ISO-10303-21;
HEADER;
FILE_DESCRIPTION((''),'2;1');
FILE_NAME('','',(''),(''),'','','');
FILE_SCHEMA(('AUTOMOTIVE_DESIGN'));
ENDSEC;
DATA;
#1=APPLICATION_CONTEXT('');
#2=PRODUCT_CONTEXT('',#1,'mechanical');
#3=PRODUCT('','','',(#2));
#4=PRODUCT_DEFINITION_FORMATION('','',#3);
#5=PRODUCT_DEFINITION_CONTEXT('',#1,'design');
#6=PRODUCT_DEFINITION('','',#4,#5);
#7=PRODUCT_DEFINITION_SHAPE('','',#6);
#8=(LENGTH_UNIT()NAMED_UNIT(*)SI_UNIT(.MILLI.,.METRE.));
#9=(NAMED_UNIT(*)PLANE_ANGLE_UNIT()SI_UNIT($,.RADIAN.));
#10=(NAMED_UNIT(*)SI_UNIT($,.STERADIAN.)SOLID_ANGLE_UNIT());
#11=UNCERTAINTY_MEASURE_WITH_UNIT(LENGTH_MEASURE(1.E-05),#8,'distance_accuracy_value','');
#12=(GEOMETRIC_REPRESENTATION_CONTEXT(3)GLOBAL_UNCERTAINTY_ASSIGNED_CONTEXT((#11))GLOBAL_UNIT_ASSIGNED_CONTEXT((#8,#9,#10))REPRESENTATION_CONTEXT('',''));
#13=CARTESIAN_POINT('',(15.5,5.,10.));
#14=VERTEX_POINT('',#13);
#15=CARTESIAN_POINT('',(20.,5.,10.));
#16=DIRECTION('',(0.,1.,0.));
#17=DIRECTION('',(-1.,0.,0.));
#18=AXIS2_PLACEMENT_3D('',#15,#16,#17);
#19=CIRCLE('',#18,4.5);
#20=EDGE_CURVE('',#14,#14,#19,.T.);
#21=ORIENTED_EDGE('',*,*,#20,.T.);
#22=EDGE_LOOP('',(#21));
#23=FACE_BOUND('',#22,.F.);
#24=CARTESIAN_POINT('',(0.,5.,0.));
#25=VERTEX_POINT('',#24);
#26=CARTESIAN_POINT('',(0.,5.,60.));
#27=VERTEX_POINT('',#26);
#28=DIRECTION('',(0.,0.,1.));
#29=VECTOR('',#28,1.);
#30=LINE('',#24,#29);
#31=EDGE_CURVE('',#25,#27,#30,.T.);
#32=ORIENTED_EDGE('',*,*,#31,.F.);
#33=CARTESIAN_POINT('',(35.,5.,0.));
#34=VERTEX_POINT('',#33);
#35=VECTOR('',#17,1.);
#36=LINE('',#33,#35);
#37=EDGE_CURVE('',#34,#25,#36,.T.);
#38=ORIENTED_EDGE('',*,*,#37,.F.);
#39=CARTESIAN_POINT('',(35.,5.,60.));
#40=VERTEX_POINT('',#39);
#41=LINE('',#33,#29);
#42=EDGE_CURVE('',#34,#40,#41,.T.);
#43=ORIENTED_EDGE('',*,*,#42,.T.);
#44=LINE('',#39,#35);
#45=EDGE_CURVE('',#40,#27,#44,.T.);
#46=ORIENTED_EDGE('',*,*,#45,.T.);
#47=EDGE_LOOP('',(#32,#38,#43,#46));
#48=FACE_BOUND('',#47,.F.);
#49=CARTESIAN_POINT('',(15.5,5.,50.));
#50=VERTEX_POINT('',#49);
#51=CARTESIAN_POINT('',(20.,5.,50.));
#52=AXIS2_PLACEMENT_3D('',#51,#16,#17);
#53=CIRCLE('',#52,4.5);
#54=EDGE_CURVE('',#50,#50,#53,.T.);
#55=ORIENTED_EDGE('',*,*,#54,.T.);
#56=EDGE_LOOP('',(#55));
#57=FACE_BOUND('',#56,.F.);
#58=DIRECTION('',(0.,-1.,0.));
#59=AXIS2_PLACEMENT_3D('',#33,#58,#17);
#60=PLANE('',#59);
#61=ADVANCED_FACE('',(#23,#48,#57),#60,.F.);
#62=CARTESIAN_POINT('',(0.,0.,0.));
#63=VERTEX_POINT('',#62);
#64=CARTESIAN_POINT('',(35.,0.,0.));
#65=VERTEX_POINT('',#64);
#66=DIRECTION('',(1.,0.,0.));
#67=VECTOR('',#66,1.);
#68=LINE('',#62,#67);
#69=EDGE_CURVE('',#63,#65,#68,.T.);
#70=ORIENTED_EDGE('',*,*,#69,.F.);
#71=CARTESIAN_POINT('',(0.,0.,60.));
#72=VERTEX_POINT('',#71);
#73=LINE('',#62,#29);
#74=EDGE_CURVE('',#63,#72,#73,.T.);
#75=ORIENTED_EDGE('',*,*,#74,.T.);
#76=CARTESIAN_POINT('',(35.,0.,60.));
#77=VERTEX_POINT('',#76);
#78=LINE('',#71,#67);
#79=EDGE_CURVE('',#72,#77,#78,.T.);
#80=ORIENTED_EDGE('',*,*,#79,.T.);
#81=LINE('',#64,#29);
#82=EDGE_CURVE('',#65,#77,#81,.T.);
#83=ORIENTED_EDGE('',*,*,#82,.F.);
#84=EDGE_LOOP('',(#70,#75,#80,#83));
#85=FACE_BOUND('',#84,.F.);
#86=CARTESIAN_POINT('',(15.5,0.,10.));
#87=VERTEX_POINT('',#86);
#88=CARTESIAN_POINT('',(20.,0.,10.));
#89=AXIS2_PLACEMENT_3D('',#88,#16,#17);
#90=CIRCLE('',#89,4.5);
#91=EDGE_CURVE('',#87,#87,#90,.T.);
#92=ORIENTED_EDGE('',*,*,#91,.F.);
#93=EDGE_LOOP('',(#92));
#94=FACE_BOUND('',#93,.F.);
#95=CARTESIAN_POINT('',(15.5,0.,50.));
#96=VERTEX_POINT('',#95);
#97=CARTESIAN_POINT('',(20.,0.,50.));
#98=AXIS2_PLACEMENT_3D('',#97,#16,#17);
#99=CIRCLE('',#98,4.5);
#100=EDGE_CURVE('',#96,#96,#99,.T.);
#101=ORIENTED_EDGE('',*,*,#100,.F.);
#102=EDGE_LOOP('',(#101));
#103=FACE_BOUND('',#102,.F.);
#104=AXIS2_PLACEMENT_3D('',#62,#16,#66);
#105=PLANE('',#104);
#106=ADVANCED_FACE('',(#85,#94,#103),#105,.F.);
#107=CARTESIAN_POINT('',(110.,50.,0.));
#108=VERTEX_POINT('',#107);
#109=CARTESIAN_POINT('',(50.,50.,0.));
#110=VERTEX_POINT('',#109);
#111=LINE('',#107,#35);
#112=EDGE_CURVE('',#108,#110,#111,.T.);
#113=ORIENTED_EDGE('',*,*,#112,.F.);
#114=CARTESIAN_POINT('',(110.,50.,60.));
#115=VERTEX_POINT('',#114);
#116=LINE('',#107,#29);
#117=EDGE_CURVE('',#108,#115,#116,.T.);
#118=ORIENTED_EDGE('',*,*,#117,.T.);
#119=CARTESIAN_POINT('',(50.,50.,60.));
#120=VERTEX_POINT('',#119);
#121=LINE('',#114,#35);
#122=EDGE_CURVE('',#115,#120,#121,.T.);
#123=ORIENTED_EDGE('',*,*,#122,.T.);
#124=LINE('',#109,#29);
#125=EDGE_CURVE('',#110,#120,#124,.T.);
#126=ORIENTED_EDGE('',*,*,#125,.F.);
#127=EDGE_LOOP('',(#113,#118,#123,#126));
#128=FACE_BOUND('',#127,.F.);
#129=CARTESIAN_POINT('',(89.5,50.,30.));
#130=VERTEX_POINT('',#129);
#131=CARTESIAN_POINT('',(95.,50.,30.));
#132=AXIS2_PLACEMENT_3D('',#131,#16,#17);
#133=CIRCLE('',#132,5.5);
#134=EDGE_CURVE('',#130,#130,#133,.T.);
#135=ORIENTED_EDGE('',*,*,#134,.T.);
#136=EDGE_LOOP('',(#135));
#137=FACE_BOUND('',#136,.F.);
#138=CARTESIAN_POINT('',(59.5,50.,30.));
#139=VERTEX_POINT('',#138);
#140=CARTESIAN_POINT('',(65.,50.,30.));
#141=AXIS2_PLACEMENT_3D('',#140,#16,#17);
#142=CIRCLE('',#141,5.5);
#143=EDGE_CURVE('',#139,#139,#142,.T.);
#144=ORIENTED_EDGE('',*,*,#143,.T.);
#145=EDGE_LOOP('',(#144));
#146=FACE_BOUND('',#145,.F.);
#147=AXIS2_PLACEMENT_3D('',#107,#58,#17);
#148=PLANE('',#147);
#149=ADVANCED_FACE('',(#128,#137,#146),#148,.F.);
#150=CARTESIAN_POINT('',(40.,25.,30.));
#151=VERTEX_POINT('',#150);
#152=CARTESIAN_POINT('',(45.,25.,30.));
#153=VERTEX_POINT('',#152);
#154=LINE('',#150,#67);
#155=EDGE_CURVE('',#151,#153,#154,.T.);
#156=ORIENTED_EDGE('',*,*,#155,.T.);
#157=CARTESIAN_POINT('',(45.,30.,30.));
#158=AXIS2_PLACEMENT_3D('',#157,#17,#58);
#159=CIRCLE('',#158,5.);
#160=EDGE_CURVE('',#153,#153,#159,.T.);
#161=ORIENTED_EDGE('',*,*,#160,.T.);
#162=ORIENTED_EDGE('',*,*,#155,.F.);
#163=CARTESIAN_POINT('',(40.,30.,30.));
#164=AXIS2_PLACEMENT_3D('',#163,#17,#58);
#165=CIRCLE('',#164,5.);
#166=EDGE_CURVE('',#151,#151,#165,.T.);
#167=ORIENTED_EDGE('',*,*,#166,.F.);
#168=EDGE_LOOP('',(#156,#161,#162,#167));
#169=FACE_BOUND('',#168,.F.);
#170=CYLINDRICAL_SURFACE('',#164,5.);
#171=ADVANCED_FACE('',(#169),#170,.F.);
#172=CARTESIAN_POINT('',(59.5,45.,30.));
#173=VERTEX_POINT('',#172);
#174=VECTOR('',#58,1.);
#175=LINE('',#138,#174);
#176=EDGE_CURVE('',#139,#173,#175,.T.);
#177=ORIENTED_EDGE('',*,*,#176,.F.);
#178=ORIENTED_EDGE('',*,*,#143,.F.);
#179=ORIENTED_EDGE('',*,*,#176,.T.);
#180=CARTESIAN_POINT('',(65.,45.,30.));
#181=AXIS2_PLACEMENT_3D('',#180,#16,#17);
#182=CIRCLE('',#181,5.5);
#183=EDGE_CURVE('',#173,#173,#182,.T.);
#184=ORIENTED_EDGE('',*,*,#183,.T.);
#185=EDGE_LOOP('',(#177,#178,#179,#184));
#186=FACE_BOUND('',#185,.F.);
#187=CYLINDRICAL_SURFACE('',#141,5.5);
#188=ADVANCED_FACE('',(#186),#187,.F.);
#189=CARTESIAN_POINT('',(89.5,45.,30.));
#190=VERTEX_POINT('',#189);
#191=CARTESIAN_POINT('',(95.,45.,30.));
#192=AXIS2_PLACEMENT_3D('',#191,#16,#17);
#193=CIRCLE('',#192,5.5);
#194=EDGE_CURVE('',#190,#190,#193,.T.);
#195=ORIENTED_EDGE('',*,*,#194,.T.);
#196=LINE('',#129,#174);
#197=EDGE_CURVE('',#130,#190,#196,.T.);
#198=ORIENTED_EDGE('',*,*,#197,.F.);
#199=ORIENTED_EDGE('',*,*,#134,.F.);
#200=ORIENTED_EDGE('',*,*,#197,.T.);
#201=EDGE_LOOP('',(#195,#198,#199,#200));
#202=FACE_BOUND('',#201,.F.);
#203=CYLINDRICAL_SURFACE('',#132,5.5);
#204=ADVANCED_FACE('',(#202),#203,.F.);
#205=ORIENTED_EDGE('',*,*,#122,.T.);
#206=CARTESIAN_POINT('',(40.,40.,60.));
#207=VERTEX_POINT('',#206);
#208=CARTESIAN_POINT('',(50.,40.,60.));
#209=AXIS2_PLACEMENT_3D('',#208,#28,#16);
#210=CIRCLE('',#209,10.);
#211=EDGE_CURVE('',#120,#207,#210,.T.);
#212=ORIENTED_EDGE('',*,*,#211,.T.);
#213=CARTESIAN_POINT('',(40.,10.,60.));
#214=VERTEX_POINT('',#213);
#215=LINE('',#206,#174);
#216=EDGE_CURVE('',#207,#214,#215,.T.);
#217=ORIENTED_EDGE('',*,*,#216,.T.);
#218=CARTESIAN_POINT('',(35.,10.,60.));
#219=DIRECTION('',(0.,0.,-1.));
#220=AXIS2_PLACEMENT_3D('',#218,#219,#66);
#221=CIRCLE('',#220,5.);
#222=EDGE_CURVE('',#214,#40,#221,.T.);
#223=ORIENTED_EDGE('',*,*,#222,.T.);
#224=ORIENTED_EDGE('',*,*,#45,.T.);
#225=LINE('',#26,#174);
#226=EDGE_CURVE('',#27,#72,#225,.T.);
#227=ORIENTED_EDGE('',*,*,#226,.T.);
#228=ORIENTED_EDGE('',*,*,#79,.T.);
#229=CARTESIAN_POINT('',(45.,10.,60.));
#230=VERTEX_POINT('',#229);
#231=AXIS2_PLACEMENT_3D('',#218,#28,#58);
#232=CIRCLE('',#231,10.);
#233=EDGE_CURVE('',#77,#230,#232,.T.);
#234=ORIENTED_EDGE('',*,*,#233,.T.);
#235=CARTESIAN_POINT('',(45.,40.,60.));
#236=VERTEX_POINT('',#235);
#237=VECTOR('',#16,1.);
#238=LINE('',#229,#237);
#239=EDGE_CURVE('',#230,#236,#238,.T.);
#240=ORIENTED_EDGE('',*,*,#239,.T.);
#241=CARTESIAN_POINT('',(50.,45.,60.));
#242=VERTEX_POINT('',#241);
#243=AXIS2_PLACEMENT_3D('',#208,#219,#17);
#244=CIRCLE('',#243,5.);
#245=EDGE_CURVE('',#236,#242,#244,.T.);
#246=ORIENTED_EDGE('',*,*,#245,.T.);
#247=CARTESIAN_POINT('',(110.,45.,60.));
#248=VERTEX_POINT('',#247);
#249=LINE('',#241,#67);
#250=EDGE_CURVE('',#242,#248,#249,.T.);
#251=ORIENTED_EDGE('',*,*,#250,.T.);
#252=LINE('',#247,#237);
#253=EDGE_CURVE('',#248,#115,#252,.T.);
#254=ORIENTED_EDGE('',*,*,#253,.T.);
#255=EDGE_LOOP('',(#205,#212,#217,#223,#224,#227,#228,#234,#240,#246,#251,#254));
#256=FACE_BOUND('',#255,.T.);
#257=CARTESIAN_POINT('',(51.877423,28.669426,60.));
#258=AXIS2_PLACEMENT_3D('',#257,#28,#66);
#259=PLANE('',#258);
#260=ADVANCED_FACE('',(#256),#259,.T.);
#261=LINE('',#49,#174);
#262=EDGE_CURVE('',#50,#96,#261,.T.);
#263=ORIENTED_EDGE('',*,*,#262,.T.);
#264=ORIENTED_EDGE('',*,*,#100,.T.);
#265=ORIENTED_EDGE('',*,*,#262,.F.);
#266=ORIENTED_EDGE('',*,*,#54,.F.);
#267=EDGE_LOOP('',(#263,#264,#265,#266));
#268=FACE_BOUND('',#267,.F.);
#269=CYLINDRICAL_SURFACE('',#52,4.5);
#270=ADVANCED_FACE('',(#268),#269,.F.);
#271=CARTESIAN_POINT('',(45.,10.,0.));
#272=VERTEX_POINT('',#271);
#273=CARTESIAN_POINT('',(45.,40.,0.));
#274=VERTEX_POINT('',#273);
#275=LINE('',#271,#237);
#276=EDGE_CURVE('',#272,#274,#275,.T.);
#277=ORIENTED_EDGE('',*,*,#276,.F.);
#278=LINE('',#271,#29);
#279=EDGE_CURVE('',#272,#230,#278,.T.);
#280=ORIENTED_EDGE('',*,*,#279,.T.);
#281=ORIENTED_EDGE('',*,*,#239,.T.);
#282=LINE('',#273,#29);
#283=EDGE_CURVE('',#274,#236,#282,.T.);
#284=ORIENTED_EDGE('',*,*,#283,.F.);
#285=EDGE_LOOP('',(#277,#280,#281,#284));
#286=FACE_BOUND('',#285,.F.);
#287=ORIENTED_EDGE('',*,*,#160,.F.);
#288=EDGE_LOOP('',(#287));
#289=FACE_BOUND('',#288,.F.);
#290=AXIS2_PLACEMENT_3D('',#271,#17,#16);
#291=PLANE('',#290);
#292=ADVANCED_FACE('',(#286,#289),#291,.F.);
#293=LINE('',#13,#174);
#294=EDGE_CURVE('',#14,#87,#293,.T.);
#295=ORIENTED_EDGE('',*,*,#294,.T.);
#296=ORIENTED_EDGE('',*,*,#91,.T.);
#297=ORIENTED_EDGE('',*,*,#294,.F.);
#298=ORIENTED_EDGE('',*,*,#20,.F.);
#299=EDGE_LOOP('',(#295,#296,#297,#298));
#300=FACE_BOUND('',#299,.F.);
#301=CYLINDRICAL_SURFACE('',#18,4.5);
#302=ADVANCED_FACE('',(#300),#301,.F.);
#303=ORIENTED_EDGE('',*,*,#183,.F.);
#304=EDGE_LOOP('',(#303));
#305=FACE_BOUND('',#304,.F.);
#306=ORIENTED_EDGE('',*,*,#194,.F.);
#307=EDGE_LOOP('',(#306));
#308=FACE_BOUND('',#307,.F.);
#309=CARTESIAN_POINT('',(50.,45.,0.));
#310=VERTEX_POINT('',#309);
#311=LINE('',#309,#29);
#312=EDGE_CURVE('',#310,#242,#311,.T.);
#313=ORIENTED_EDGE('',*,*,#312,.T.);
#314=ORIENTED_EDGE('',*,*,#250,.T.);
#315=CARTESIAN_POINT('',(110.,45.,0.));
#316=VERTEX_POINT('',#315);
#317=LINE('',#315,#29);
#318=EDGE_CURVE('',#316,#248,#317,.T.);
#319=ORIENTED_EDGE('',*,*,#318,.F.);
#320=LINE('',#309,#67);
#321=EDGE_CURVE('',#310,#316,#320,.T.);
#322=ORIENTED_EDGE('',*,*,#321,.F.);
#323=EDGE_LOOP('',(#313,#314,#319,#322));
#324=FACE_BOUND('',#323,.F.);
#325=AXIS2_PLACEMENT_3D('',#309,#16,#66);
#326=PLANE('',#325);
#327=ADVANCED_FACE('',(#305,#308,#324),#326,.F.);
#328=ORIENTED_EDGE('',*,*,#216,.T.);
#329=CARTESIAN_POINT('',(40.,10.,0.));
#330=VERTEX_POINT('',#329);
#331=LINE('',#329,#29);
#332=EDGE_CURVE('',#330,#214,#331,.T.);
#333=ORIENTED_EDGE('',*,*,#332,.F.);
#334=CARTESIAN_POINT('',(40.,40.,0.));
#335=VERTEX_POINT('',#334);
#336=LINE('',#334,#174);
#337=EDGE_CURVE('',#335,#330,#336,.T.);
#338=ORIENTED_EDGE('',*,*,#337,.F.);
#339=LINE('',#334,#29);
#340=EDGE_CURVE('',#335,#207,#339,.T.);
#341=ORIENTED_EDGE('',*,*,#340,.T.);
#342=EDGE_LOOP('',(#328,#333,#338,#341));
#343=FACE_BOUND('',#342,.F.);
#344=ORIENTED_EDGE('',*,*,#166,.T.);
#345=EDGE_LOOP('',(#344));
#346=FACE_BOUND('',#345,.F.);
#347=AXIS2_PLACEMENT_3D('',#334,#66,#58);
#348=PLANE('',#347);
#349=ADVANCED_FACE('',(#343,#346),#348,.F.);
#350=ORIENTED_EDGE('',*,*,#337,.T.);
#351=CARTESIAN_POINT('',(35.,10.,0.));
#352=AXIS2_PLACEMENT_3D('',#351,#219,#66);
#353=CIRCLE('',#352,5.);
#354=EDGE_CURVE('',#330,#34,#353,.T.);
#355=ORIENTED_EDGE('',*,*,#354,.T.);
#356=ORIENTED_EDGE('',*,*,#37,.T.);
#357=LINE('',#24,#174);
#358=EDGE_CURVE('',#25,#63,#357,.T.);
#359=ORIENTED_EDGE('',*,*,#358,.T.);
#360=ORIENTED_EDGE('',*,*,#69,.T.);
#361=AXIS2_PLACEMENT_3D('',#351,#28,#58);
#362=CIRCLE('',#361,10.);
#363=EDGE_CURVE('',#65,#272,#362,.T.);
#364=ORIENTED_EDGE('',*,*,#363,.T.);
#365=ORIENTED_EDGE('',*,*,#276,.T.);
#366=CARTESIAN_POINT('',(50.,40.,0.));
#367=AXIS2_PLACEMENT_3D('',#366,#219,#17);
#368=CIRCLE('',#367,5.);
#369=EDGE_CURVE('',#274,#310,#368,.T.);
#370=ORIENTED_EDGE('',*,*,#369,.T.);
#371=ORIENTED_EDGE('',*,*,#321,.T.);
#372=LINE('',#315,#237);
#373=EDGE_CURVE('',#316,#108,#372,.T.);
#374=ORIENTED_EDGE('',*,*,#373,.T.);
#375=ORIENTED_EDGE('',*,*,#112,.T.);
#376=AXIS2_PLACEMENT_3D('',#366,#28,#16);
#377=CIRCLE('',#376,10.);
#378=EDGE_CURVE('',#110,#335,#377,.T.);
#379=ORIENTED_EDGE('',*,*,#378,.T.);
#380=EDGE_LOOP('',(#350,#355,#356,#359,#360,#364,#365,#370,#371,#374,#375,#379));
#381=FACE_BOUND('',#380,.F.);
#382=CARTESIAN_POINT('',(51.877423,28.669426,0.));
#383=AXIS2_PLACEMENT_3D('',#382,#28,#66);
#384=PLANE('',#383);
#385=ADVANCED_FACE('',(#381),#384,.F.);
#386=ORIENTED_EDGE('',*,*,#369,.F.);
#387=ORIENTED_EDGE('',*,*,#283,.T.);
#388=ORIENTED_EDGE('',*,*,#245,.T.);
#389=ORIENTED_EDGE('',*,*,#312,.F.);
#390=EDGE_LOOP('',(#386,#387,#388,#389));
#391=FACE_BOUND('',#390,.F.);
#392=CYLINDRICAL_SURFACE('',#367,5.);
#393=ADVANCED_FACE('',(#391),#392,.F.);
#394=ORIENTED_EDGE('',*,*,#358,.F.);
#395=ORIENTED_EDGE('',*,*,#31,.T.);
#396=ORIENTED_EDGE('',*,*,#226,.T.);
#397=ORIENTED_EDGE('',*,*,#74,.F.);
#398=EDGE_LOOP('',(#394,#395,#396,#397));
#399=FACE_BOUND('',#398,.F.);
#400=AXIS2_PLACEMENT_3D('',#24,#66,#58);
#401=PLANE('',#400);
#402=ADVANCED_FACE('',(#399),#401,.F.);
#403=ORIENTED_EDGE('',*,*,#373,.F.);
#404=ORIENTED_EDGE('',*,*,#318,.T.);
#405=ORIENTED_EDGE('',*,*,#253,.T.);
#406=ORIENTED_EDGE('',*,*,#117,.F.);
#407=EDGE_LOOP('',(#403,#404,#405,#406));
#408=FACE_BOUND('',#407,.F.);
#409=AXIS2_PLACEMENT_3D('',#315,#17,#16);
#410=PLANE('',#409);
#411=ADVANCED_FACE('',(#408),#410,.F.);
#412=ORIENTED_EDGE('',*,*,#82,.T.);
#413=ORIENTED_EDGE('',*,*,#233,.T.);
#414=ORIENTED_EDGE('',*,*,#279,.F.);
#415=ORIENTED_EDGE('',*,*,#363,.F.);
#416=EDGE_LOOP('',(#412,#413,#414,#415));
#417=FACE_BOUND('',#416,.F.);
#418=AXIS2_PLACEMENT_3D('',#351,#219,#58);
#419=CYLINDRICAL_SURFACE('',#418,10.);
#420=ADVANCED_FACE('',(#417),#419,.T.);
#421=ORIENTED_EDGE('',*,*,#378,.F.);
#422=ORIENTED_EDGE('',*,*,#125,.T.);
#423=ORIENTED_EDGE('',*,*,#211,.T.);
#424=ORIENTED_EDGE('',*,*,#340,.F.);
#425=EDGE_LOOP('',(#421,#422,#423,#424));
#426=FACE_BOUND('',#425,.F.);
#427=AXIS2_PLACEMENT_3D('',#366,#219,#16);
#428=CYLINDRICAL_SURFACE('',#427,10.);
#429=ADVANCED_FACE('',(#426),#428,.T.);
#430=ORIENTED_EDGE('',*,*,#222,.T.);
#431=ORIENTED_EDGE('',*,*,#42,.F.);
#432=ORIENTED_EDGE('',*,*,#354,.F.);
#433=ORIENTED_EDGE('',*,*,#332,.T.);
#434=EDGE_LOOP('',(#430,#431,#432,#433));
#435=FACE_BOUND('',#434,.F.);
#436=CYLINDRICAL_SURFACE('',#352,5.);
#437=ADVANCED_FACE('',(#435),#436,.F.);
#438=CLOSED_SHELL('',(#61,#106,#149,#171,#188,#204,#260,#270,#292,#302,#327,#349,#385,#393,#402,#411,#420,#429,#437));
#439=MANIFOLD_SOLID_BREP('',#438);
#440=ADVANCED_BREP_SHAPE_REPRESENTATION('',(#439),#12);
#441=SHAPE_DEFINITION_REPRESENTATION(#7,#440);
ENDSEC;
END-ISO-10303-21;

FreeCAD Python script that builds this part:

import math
import FreeCAD as App
import Part
import Sketcher
Q = App.Units.Quantity

doc = App.newDocument("Part")
body = doc.addObject("PartDesign::Body", "Body")

sketch1 = doc.addObject("Sketcher::SketchObject", "Sketch")
body.addObject(sketch1)
sketch1.AttachmentSupport = (doc.XY_Plane, [""])
sketch1.MapMode = "FlatFace"
sketch1.addGeometry([
    Part.LineSegment(App.Vector(0, 5, 0), App.Vector(0, 0, 0)),
    Part.LineSegment(App.Vector(0, 0, 0), App.Vector(35, 0, 0)),
    Part.ArcOfCircle(Part.Circle(App.Vector(35, 10, 0), App.Vector(0, 0, 1), 10), math.radians(-90), math.radians(0)),
    Part.LineSegment(App.Vector(45, 10, 0), App.Vector(45, 40, 0)),
    Part.ArcOfCircle(Part.Circle(App.Vector(50, 40, 0), App.Vector(0, 0, 1), 5), math.radians(90), math.radians(180)),
    Part.LineSegment(App.Vector(50, 45, 0), App.Vector(110, 45, 0)),
    Part.LineSegment(App.Vector(110, 45, 0), App.Vector(110, 50, 0)),
    Part.LineSegment(App.Vector(110, 50, 0), App.Vector(50, 50, 0)),
    Part.ArcOfCircle(Part.Circle(App.Vector(50, 40, 0), App.Vector(0, 0, 1), 10), math.radians(90), math.radians(180)),
    Part.LineSegment(App.Vector(40, 40, 0), App.Vector(40, 10, 0)),
    Part.ArcOfCircle(Part.Circle(App.Vector(35, 10, 0), App.Vector(0, 0, 1), 5), math.radians(-90), math.radians(0)),
    Part.LineSegment(App.Vector(35, 5, 0), App.Vector(0, 5, 0)),
], False)
sketch1.addConstraint([
    Sketcher.Constraint("Coincident", 0, 2, 1, 1),
    Sketcher.Constraint("Tangent", 1, 2, 2, 1),
    Sketcher.Constraint("Tangent", 2, 2, 3, 1),
    Sketcher.Constraint("Tangent", 3, 2, 4, 2),
    Sketcher.Constraint("Tangent", 4, 1, 5, 1),
    Sketcher.Constraint("Coincident", 5, 2, 6, 1),
    Sketcher.Constraint("Coincident", 6, 2, 7, 1),
    Sketcher.Constraint("Tangent", 7, 2, 8, 1),
    Sketcher.Constraint("Tangent", 8, 2, 9, 1),
    Sketcher.Constraint("Tangent", 9, 2, 10, 2),
    Sketcher.Constraint("Tangent", 10, 1, 11, 1),
    Sketcher.Constraint("Coincident", 11, 2, 0, 1),
    Sketcher.Constraint("Vertical", 0),
    Sketcher.Constraint("Horizontal", 1),
    Sketcher.Constraint("Vertical", 3),
    Sketcher.Constraint("Horizontal", 5),
    Sketcher.Constraint("Vertical", 6),
    Sketcher.Constraint("Horizontal", 7),
    Sketcher.Constraint("Vertical", 9),
    Sketcher.Constraint("Horizontal", 11),
    Sketcher.Constraint("Coincident", 0, 2, -1, 1),
    Sketcher.Constraint("Coincident", 8, 3, 4, 3),
    Sketcher.Constraint("Coincident", 10, 3, 2, 3),
    Sketcher.Constraint("Equal", 2, 8),
    Sketcher.Constraint("Radius", 2, Q("10 mm")),
    Sketcher.Constraint("Radius", 4, Q("5 mm")),
    Sketcher.Constraint("DistanceX", 1, 1, 1, 2, Q("35 mm")),
    Sketcher.Constraint("DistanceX", 5, 1, 5, 2, Q("60 mm")),
    Sketcher.Constraint("DistanceY", 3, 1, 3, 2, Q("30 mm")),
])
pad1 = doc.addObject("PartDesign::Pad", "Pad")
body.addObject(pad1)
pad1.Profile = sketch1
pad1.Length = 60

sketch2 = doc.addObject("Sketcher::SketchObject", "Sketch001")
body.addObject(sketch2)
sketch2.AttachmentSupport = (doc.XZ_Plane, [""])
sketch2.MapMode = "FlatFace"
sketch2.AttachmentOffset = App.Placement(App.Vector(0, 0, -5), App.Rotation())
sketch2.addGeometry([
    Part.Circle(App.Vector(20, 10, 0), App.Vector(0, 0, 1), 4.5),
    Part.Circle(App.Vector(20, 50, 0), App.Vector(0, 0, 1), 4.5),
], False)
sketch2.addConstraint([
    Sketcher.Constraint("Equal", 0, 1),
    Sketcher.Constraint("Vertical", 0, 3, 1, 3),
    Sketcher.Constraint("Diameter", 0, Q("9 mm")),
    Sketcher.Constraint("DistanceX", -1, 1, 0, 3, Q("20 mm")),
    Sketcher.Constraint("DistanceY", -1, 1, 0, 3, Q("10 mm")),
    Sketcher.Constraint("DistanceY", -1, 1, 1, 3, Q("50 mm")),
])
pocket1 = doc.addObject("PartDesign::Pocket", "Pocket")
body.addObject(pocket1)
pocket1.Profile = sketch2
pocket1.Length = 25
pocket1.Reversed = True

sketch3 = doc.addObject("Sketcher::SketchObject", "Sketch002")
body.addObject(sketch3)
sketch3.AttachmentSupport = (doc.XZ_Plane, [""])
sketch3.MapMode = "FlatFace"
sketch3.AttachmentOffset = App.Placement(App.Vector(0, 0, -50), App.Rotation())
sketch3.addGeometry([
    Part.Circle(App.Vector(65, 30, 0), App.Vector(0, 0, 1), 6),
    Part.Circle(App.Vector(95, 30, 0), App.Vector(0, 0, 1), 6),
], False)
sketch3.addConstraint([
    Sketcher.Constraint("Equal", 0, 1),
    Sketcher.Constraint("Horizontal", 0, 3, 1, 3),
    Sketcher.Constraint("Diameter", 0, Q("11 mm")),
    Sketcher.Constraint("DistanceX", -1, 1, 0, 3, Q("65 mm")),
    Sketcher.Constraint("DistanceY", -1, 1, 0, 3, Q("30 mm")),
    Sketcher.Constraint("DistanceX", -1, 1, 1, 3, Q("95 mm")),
])
pocket2 = doc.addObject("PartDesign::Pocket", "Pocket001")
body.addObject(pocket2)
pocket2.Profile = sketch3
pocket2.Length = 25
pocket2.Reversed = True

sketch4 = doc.addObject("Sketcher::SketchObject", "Sketch003")
body.addObject(sketch4)
sketch4.AttachmentSupport = (doc.YZ_Plane, [""])
sketch4.MapMode = "FlatFace"
sketch4.AttachmentOffset = App.Placement(App.Vector(0, 0, 40), App.Rotation())
sketch4.addGeometry(Part.Circle(App.Vector(30, 30, 0), App.Vector(0, 0, 1), 5), False)
sketch4.addConstraint([
    Sketcher.Constraint("Diameter", 0, Q("10 mm")),
    Sketcher.Constraint("DistanceX", -1, 1, 0, 3, Q("30 mm")),
    Sketcher.Constraint("DistanceY", -1, 1, 0, 3, Q("30 mm")),
])
pocket3 = doc.addObject("PartDesign::Pocket", "Pocket002")
body.addObject(pocket3)
pocket3.Profile = sketch4
pocket3.Length = 25
pocket3.Reversed = True

doc.recompute()
